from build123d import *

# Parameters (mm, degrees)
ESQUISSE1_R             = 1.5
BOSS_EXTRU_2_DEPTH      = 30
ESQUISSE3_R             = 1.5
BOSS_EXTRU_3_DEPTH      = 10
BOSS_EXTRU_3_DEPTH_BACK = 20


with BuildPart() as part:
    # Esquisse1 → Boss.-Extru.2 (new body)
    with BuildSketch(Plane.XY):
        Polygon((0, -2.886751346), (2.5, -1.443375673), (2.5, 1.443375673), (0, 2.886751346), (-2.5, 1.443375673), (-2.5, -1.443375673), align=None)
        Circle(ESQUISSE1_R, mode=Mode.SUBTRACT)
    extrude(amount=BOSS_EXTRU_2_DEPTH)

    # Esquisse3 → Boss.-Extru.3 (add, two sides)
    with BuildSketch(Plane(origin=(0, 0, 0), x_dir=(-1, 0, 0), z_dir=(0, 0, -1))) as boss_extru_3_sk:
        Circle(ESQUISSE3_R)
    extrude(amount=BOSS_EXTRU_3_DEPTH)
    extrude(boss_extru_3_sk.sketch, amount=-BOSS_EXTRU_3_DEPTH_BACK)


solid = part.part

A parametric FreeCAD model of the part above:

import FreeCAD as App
import Part
import Sketcher

V = App.Vector
Q = App.Units.Quantity


def add_polygon(sketch, points):
    """Adds a closed chain of lines whose ends are joined by coincident constraints."""
    first, n = sketch.GeometryCount, len(points)
    for a, b in zip(points, points[1:] + points[:1]):
        sketch.addGeometry(Part.LineSegment(App.Vector(*a, 0), App.Vector(*b, 0)), False)
    for i in range(n):
        sketch.addConstraint(Sketcher.Constraint("Coincident", first + i, 2, first + (i + 1) % n, 1))

doc = App.newDocument("Part")
body = doc.addObject("PartDesign::Body", "Body")

sketch1 = body.newObject("Sketcher::SketchObject", "Sketch")
sketch1.AttachmentSupport = (doc.getObject("XY_Plane"), [""])
sketch1.MapMode = "FlatFace"
add_polygon(sketch1, [(0, -2.9), (2.5, -1.4), (2.5, 1.4), (0, 2.9), (-2.5, 1.4), (-2.5, -1.4)])
sketch1.addGeometry(Part.Circle(V(0, 0, 0), V(0, 0, 1), 1.5), False)
sketch1.addConstraint([
    Sketcher.Constraint("Vertical", 1),
    Sketcher.Constraint("Vertical", 4),
    Sketcher.Constraint("Coincident", 6, 3, -1, 1),
    Sketcher.Constraint("Symmetric", 0, 2, 3, 2, -1, 1),
    Sketcher.Constraint("Symmetric", 2, 2, 5, 2, -1, 1),
    Sketcher.Constraint("PointOnObject", 2, 2, -2),
    Sketcher.Constraint("Parallel", 2, 5),
    Sketcher.Constraint("Horizontal", 1, 2, 3, 2),
    Sketcher.Constraint("Diameter", 6, 3.0),
    Sketcher.Constraint("Angle", 0, Q("30 deg")),
    Sketcher.Constraint("DistanceX", 3, 2, 1, 2, 5.0),
    Sketcher.Constraint("DistanceY", 1, 1, 1, 2, 2.886751),
])
pad1 = body.newObject("PartDesign::Pad", "Pad")
pad1.Profile = sketch1
pad1.Length = 30

sketch2 = body.newObject("Sketcher::SketchObject", "Sketch001")
sketch2.AttachmentSupport = (doc.getObject("XY_Plane"), [""])
sketch2.MapMode = "FlatFace"
sketch2.addGeometry(Part.Circle(V(0, 0, 0), V(0, 0, 1), 1.5), False)
sketch2.addConstraint([
    Sketcher.Constraint("Coincident", 0, 3, -1, 1),
    Sketcher.Constraint("Diameter", 0, 3.0),
])
pad2 = body.newObject("PartDesign::Pad", "Pad001")
pad2.Profile = sketch2
pad2.Type = "TwoLengths"
pad2.Length = 10
pad2.Length2 = 20
pad2.Reversed = True

doc.recompute()
